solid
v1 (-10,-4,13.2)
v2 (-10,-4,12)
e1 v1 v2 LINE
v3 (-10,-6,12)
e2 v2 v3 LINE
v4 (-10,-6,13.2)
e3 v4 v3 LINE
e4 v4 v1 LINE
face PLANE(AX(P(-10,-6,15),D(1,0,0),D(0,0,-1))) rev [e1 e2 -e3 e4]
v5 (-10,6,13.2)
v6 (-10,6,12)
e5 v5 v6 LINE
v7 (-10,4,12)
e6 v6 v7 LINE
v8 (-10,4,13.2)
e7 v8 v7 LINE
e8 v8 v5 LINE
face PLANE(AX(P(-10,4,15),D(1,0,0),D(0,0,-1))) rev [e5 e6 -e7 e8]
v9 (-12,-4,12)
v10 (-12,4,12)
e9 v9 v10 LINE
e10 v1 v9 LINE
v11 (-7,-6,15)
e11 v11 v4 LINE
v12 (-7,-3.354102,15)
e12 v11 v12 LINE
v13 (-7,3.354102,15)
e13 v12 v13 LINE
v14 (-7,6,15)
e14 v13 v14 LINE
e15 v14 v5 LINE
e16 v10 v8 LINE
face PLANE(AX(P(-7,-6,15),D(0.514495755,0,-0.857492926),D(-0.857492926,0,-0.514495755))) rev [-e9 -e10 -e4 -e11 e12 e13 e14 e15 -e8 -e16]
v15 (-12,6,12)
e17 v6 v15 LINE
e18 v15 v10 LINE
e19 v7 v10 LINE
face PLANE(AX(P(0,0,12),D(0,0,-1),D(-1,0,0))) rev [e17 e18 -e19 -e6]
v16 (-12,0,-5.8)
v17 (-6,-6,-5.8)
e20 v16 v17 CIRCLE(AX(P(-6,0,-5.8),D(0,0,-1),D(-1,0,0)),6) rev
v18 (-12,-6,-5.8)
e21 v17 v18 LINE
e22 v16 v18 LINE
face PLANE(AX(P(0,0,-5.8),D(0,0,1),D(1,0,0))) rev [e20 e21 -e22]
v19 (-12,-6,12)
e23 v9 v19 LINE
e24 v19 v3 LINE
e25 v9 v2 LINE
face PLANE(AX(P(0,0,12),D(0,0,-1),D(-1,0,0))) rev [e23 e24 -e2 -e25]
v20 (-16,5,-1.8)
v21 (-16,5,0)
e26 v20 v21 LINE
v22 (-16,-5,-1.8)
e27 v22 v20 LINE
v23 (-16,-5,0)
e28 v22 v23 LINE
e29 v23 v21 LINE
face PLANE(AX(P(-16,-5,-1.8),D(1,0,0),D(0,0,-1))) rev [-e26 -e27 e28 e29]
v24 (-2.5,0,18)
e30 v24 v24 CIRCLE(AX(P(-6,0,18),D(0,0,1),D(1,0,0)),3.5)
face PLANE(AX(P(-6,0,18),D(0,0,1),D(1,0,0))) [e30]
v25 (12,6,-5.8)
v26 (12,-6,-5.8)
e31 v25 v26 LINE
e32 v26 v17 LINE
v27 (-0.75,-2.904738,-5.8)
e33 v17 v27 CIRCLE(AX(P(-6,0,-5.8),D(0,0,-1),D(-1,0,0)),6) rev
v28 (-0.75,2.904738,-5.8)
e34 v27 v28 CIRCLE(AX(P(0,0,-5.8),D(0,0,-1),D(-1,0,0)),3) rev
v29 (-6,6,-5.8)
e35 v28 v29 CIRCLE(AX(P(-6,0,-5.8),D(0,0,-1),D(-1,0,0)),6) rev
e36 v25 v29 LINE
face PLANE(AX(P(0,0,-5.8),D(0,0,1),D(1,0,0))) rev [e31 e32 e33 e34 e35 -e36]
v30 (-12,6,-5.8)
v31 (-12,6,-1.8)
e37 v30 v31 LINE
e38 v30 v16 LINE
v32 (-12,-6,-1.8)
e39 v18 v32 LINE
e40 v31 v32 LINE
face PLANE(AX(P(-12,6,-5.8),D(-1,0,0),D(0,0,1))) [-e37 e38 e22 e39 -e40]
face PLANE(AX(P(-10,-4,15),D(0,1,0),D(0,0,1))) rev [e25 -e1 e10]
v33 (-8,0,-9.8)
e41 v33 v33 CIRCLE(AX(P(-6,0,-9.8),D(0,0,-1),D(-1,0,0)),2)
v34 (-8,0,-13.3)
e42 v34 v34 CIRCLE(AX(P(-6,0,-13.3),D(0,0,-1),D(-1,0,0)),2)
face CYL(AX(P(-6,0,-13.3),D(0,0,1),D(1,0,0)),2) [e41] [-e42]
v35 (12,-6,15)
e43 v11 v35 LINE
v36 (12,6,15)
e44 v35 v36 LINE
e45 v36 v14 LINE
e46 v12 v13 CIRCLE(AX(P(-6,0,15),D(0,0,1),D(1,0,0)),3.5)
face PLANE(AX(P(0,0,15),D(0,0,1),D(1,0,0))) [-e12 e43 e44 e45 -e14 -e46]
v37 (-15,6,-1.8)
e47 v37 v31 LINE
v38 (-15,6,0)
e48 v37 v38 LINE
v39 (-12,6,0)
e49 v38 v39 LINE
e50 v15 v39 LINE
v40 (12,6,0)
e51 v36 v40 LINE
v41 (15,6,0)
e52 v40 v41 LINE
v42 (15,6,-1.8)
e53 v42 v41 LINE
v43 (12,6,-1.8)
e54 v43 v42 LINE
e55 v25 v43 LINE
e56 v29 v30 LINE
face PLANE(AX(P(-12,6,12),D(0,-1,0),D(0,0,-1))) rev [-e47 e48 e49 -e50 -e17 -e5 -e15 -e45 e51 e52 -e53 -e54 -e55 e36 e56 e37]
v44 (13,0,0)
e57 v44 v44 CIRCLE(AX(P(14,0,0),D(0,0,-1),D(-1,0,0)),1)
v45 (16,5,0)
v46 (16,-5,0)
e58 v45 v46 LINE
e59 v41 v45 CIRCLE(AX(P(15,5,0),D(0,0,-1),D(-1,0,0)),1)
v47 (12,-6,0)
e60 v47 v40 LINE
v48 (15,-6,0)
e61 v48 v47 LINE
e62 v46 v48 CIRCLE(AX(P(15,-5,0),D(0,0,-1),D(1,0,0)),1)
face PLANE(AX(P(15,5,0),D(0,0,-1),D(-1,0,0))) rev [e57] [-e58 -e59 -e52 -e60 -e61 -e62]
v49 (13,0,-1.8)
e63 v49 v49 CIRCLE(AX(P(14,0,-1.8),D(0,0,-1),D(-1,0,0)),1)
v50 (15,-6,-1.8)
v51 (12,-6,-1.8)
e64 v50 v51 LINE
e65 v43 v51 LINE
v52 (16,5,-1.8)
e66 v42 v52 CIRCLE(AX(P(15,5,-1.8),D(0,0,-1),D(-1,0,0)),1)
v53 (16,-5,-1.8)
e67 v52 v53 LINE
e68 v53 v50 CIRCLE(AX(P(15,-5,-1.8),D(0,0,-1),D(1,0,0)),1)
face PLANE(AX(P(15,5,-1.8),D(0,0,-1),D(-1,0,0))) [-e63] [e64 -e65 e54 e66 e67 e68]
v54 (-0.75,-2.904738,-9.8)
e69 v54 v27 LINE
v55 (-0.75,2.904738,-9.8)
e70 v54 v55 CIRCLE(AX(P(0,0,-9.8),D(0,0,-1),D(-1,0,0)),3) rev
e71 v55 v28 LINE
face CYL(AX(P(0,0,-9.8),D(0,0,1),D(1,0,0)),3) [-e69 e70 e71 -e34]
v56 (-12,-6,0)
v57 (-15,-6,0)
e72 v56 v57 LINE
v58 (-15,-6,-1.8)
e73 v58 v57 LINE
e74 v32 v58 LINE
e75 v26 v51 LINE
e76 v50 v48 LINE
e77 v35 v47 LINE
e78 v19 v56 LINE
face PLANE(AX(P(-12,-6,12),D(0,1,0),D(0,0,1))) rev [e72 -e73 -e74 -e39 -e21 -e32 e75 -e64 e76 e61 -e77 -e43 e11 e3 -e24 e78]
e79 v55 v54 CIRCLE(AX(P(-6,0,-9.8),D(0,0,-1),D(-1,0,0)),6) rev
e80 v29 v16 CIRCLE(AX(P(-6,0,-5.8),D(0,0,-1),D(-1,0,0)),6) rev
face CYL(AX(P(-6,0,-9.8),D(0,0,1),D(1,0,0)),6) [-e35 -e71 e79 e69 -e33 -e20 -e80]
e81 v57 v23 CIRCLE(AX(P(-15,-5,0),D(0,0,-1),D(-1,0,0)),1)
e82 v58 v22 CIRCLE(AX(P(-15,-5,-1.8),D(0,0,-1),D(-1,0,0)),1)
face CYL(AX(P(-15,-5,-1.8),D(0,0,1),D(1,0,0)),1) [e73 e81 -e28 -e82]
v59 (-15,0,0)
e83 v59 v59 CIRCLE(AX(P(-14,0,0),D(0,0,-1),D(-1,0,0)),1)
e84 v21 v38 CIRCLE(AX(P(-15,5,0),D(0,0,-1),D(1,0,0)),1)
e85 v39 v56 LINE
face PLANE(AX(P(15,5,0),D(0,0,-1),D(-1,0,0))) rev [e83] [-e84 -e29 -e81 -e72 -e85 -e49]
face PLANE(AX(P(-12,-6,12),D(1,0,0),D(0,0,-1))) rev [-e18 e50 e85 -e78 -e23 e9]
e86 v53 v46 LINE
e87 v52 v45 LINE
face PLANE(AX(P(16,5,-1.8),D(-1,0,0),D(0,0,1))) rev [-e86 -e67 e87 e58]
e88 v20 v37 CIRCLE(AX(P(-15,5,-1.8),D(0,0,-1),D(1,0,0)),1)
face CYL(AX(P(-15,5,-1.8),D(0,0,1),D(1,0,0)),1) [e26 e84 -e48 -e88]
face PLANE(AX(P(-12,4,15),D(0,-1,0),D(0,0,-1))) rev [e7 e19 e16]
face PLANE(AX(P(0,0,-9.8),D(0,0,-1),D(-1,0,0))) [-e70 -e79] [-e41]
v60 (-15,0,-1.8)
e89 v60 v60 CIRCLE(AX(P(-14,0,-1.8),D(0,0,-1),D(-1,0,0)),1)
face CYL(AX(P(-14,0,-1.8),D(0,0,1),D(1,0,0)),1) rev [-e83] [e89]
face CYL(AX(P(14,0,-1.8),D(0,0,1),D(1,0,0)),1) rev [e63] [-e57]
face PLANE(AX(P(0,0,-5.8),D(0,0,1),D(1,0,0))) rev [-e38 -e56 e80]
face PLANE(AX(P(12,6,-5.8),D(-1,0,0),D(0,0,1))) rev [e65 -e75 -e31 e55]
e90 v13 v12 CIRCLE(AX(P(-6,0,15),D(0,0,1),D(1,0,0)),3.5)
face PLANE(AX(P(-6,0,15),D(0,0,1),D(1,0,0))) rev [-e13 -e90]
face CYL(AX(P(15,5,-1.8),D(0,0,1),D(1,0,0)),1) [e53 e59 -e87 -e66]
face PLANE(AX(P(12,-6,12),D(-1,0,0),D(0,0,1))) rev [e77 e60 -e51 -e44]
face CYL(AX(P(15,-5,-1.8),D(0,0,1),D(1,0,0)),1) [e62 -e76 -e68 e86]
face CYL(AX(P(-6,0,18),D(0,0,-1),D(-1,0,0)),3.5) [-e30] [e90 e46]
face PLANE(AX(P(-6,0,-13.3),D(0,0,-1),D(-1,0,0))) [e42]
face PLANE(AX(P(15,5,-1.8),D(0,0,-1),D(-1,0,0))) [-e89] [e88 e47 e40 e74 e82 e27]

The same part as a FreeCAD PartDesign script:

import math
import FreeCAD as App
import Part
import Sketcher

V = App.Vector


def add_polygon(sketch, points):
    """Adds a closed chain of lines whose ends are joined by coincident constraints."""
    first, n = sketch.GeometryCount, len(points)
    for a, b in zip(points, points[1:] + points[:1]):
        sketch.addGeometry(Part.LineSegment(App.Vector(*a, 0), App.Vector(*b, 0)), False)
    for i in range(n):
        sketch.addConstraint(Sketcher.Constraint("Coincident", first + i, 2, first + (i + 1) % n, 1))

doc = App.newDocument("Part")
body = doc.addObject("PartDesign::Body", "Body")

sketch1 = doc.addObject("Sketcher::SketchObject", "Sketch")
body.addObject(sketch1)
sketch1.AttachmentSupport = (doc.XY_Plane, [""])
sketch1.MapMode = "FlatFace"
add_polygon(sketch1, [(-12, 6), (-12, -6), (12, -6), (12, 6)])
sketch1.addConstraint(Sketcher.Constraint("Vertical", 0))
sketch1.addConstraint(Sketcher.Constraint("Horizontal", 1))
sketch1.addConstraint(Sketcher.Constraint("Vertical", 2))
sketch1.addConstraint(Sketcher.Constraint("Horizontal", 3))
sketch1.addConstraint(Sketcher.Constraint("Symmetric", 0, 2, 2, 2, -1, 1))
sketch1.addConstraint(Sketcher.Constraint("DistanceX", 1, 1, 1, 2, 24.0))
sketch1.addConstraint(Sketcher.Constraint("DistanceY", 0, 2, 0, 1, 12.0))
pad1 = doc.addObject("PartDesign::Pad", "Pad")
body.addObject(pad1)
pad1.Profile = sketch1
pad1.Length = 12

sketch2 = doc.addObject("Sketcher::SketchObject", "Sketch001")
body.addObject(sketch2)
sketch2.AttachmentSupport = (doc.XY_Plane, [""])
sketch2.MapMode = "FlatFace"
sketch2.addGeometry(Part.ArcOfCircle(Part.Circle(V(-15, 5, 0), V(0, 0, 1), 1), math.radians(90), math.radians(180)), False)
sketch2.addGeometry(Part.LineSegment(V(-15, 6, 0), V(15, 6, 0)), False)
sketch2.addGeometry(Part.ArcOfCircle(Part.Circle(V(15, 5, 0), V(0, 0, 1), 1), math.radians(0), math.radians(90)), False)
sketch2.addGeometry(Part.LineSegment(V(16, 5, 0), V(16, -5, 0)), False)
sketch2.addGeometry(Part.ArcOfCircle(Part.Circle(V(15, -5, 0), V(0, 0, 1), 1), math.radians(-90), math.radians(0)), False)
sketch2.addGeometry(Part.LineSegment(V(15, -6, 0), V(-15, -6, 0)), False)
sketch2.addGeometry(Part.ArcOfCircle(Part.Circle(V(-15, -5, 0), V(0, 0, 1), 1), math.radians(-180), math.radians(-90)), False)
sketch2.addGeometry(Part.LineSegment(V(-16, -5, 0), V(-16, 5, 0)), False)
sketch2.addGeometry(Part.Circle(V(-14, 0, 0), V(0, 0, 1), 1), False)
sketch2.addGeometry(Part.Circle(V(14, 0, 0), V(0, 0, 1), 1), False)
sketch2.addConstraint(Sketcher.Constraint("Tangent", 0, 1, 1, 1))
sketch2.addConstraint(Sketcher.Constraint("Tangent", 1, 2, 2, 2))
sketch2.addConstraint(Sketcher.Constraint("Tangent", 2, 1, 3, 1))
sketch2.addConstraint(Sketcher.Constraint("Tangent", 3, 2, 4, 2))
sketch2.addConstraint(Sketcher.Constraint("Tangent", 4, 1, 5, 1))
sketch2.addConstraint(Sketcher.Constraint("Tangent", 5, 2, 6, 2))
sketch2.addConstraint(Sketcher.Constraint("Tangent", 6, 1, 7, 1))
sketch2.addConstraint(Sketcher.Constraint("Tangent", 7, 2, 0, 2))
sketch2.addConstraint(Sketcher.Constraint("Horizontal", 1))
sketch2.addConstraint(Sketcher.Constraint("Vertical", 3))
sketch2.addConstraint(Sketcher.Constraint("Horizontal", 5))
sketch2.addConstraint(Sketcher.Constraint("Vertical", 7))
sketch2.addConstraint(Sketcher.Constraint("Equal", 0, 2))
sketch2.addConstraint(Sketcher.Constraint("Equal", 2, 4))
sketch2.addConstraint(Sketcher.Constraint("Equal", 4, 6))
sketch2.addConstraint(Sketcher.Constraint("Equal", 6, 8))
sketch2.addConstraint(Sketcher.Constraint("Equal", 8, 9))
sketch2.addConstraint(Sketcher.Constraint("Symmetric", 0, 3, 4, 3, -1, 1))
sketch2.addConstraint(Sketcher.Constraint("Symmetric", 8, 3, 9, 3, -1, 1))
sketch2.addConstraint(Sketcher.Constraint("PointOnObject", 8, 3, -1))
sketch2.addConstraint(Sketcher.Constraint("Diameter", 8, 2.0))
sketch2.addConstraint(Sketcher.Constraint("DistanceX", 1, 1, 1, 2, 30.0))
sketch2.addConstraint(Sketcher.Constraint("DistanceY", 3, 2, 3, 1, 10.0))
sketch2.addConstraint(Sketcher.Constraint("DistanceX", 8, 3, -1, 1, 14.0))
pad2 = doc.addObject("PartDesign::Pad", "Pad001")
body.addObject(pad2)
pad2.Profile = sketch2
pad2.Length = 1.8
pad2.Reversed = True

sketch3 = doc.addObject("Sketcher::SketchObject", "Sketch002")
body.addObject(sketch3)
sketch3.AttachmentSupport = (doc.XY_Plane, [""])
sketch3.MapMode = "FlatFace"
sketch3.AttachmentOffset = App.Placement(V(0, 0, -1.8), App.Rotation())
add_polygon(sketch3, [(12, 6), (12, -6), (-12, -6), (-12, 6)])
sketch3.addConstraint(Sketcher.Constraint("Vertical", 0))
sketch3.addConstraint(Sketcher.Constraint("Horizontal", 1))
sketch3.addConstraint(Sketcher.Constraint("Vertical", 2))
sketch3.addConstraint(Sketcher.Constraint("Horizontal", 3))
sketch3.addConstraint(Sketcher.Constraint("Symmetric", 0, 2, 2, 2, -1, 1))
sketch3.addConstraint(Sketcher.Constraint("DistanceX", 1, 2, 1, 1, 24.0))
sketch3.addConstraint(Sketcher.Constraint("DistanceY", 0, 2, 0, 1, 12.0))
pad3 = doc.addObject("PartDesign::Pad", "Pad002")
body.addObject(pad3)
pad3.Profile = sketch3
pad3.Length = 4
pad3.Reversed = True

sketch4 = doc.addObject("Sketcher::SketchObject", "Sketch003")
body.addObject(sketch4)
sketch4.AttachmentSupport = (doc.XY_Plane, [""])
sketch4.MapMode = "FlatFace"
sketch4.AttachmentOffset = App.Placement(V(0, 0, -5.8), App.Rotation())
sketch4.addGeometry(Part.ArcOfCircle(Part.Circle(V(-6, 0, 0), V(0, 0, 1), 6), math.radians(29), math.radians(331)), False)
sketch4.addGeometry(Part.ArcOfCircle(Part.Circle(V(0, 0, 0), V(0, 0, 1), 3), math.radians(-104), math.radians(104)), False)
sketch4.addConstraint(Sketcher.Constraint("Coincident", 0, 1, 1, 2))
sketch4.addConstraint(Sketcher.Constraint("Coincident", 1, 1, 0, 2))
sketch4.addConstraint(Sketcher.Constraint("Coincident", 1, 3, -1, 1))
sketch4.addConstraint(Sketcher.Constraint("PointOnObject", 0, 3, -1))
sketch4.addConstraint(Sketcher.Constraint("Radius", 0, 6.0))
sketch4.addConstraint(Sketcher.Constraint("Radius", 1, 3.0))
sketch4.addConstraint(Sketcher.Constraint("DistanceX", 0, 3, -1, 1, 6.0))
pad4 = doc.addObject("PartDesign::Pad", "Pad003")
body.addObject(pad4)
pad4.Profile = sketch4
pad4.Length = 4
pad4.Reversed = True

sketch5 = doc.addObject("Sketcher::SketchObject", "Sketch004")
body.addObject(sketch5)
sketch5.AttachmentSupport = (doc.XY_Plane, [""])
sketch5.MapMode = "FlatFace"
sketch5.AttachmentOffset = App.Placement(V(0, 0, -9.8), App.Rotation())
sketch5.addGeometry(Part.Circle(V(-6, 0, 0), V(0, 0, 1), 2), False)
sketch5.addConstraint(Sketcher.Constraint("PointOnObject", 0, 3, -1))
sketch5.addConstraint(Sketcher.Constraint("Diameter", 0, 4.0))
sketch5.addConstraint(Sketcher.Constraint("DistanceX", 0, 3, -1, 1, 6.0))
pad5 = doc.addObject("PartDesign::Pad", "Pad004")
body.addObject(pad5)
pad5.Profile = sketch5
pad5.Length = 3.5
pad5.Reversed = True

sketch6 = doc.addObject("Sketcher::SketchObject", "Sketch005")
body.addObject(sketch6)
sketch6.AttachmentSupport = (doc.XY_Plane, [""])
sketch6.MapMode = "FlatFace"
sketch6.AttachmentOffset = App.Placement(V(0, 0, 12), App.Rotation())
add_polygon(sketch6, [(12, -6), (12, 6), (-10, 6), (-10, 4), (-12, 4), (-12, -4), (-10, -4), (-10, -6)])
sketch6.addConstraint(Sketcher.Constraint("Vertical", 0))
sketch6.addConstraint(Sketcher.Constraint("Horizontal", 1))
sketch6.addConstraint(Sketcher.Constraint("Vertical", 2))
sketch6.addConstraint(Sketcher.Constraint("Horizontal", 3))
sketch6.addConstraint(Sketcher.Constraint("Vertical", 4))
sketch6.addConstraint(Sketcher.Constraint("Horizontal", 5))
sketch6.addConstraint(Sketcher.Constraint("Vertical", 6))
sketch6.addConstraint(Sketcher.Constraint("Horizontal", 7))
sketch6.addConstraint(Sketcher.Constraint("Symmetric", 2, 2, 5, 2, -1))
sketch6.addConstraint(Sketcher.Constraint("Equal", 5, 2))
sketch6.addConstraint(Sketcher.Constraint("Equal", 2, 6))
sketch6.addConstraint(Sketcher.Constraint("DistanceX", 1, 2, 1, 1, 22.0))
sketch6.addConstraint(Sketcher.Constraint("DistanceX", 3, 2, 3, 1, 2.0))
sketch6.addConstraint(Sketcher.Constraint("DistanceY", 0, 1, 0, 2, 12.0))
sketch6.addConstraint(Sketcher.Constraint("DistanceX", -1, 1, 0, 2, 12.0))
pad6 = doc.addObject("PartDesign::Pad", "Pad005")
body.addObject(pad6)
pad6.Profile = sketch6
pad6.Length = 3

sketch7 = doc.addObject("Sketcher::SketchObject", "Sketch006")
body.addObject(sketch7)
sketch7.AttachmentSupport = (doc.XZ_Plane, [""])
sketch7.MapMode = "FlatFace"
sketch7.AttachmentOffset = App.Placement(V(0, 0, -6), App.Rotation())
add_polygon(sketch7, [(-7, 15), (-12, 12), (-12, 15)])
sketch7.addConstraint(Sketcher.Constraint("Vertical", 1))
sketch7.addConstraint(Sketcher.Constraint("Horizontal", 2))
sketch7.addConstraint(Sketcher.Constraint("DistanceX", 2, 1, 2, 2, 5.0))
sketch7.addConstraint(Sketcher.Constraint("DistanceY", 1, 1, 1, 2, 3.0))
sketch7.addConstraint(Sketcher.Constraint("DistanceX", 0, 2, -1, 1, 12.0))
sketch7.addConstraint(Sketcher.Constraint("DistanceY", -1, 1, 0, 2, 12.0))
pocket1 = doc.addObject("PartDesign::Pocket", "Pocket")
body.addObject(pocket1)
pocket1.Profile = sketch7
pocket1.Length = 12
pocket1.Reversed = True

sketch8 = doc.addObject("Sketcher::SketchObject", "Sketch007")
body.addObject(sketch8)
sketch8.AttachmentSupport = (doc.XY_Plane, [""])
sketch8.MapMode = "FlatFace"
sketch8.AttachmentOffset = App.Placement(V(0, 0, 15), App.Rotation())
sketch8.addGeometry(Part.Circle(V(-6, 0, 0), V(0, 0, 1), 3.5), False)
sketch8.addConstraint(Sketcher.Constraint("PointOnObject", 0, 3, -1))
sketch8.addConstraint(Sketcher.Constraint("Diameter", 0, 7.0))
sketch8.addConstraint(Sketcher.Constraint("DistanceX", 0, 3, -1, 1, 6.0))
pad7 = doc.addObject("PartDesign::Pad", "Pad006")
body.addObject(pad7)
pad7.Profile = sketch8
pad7.Length = 3

doc.recompute()
